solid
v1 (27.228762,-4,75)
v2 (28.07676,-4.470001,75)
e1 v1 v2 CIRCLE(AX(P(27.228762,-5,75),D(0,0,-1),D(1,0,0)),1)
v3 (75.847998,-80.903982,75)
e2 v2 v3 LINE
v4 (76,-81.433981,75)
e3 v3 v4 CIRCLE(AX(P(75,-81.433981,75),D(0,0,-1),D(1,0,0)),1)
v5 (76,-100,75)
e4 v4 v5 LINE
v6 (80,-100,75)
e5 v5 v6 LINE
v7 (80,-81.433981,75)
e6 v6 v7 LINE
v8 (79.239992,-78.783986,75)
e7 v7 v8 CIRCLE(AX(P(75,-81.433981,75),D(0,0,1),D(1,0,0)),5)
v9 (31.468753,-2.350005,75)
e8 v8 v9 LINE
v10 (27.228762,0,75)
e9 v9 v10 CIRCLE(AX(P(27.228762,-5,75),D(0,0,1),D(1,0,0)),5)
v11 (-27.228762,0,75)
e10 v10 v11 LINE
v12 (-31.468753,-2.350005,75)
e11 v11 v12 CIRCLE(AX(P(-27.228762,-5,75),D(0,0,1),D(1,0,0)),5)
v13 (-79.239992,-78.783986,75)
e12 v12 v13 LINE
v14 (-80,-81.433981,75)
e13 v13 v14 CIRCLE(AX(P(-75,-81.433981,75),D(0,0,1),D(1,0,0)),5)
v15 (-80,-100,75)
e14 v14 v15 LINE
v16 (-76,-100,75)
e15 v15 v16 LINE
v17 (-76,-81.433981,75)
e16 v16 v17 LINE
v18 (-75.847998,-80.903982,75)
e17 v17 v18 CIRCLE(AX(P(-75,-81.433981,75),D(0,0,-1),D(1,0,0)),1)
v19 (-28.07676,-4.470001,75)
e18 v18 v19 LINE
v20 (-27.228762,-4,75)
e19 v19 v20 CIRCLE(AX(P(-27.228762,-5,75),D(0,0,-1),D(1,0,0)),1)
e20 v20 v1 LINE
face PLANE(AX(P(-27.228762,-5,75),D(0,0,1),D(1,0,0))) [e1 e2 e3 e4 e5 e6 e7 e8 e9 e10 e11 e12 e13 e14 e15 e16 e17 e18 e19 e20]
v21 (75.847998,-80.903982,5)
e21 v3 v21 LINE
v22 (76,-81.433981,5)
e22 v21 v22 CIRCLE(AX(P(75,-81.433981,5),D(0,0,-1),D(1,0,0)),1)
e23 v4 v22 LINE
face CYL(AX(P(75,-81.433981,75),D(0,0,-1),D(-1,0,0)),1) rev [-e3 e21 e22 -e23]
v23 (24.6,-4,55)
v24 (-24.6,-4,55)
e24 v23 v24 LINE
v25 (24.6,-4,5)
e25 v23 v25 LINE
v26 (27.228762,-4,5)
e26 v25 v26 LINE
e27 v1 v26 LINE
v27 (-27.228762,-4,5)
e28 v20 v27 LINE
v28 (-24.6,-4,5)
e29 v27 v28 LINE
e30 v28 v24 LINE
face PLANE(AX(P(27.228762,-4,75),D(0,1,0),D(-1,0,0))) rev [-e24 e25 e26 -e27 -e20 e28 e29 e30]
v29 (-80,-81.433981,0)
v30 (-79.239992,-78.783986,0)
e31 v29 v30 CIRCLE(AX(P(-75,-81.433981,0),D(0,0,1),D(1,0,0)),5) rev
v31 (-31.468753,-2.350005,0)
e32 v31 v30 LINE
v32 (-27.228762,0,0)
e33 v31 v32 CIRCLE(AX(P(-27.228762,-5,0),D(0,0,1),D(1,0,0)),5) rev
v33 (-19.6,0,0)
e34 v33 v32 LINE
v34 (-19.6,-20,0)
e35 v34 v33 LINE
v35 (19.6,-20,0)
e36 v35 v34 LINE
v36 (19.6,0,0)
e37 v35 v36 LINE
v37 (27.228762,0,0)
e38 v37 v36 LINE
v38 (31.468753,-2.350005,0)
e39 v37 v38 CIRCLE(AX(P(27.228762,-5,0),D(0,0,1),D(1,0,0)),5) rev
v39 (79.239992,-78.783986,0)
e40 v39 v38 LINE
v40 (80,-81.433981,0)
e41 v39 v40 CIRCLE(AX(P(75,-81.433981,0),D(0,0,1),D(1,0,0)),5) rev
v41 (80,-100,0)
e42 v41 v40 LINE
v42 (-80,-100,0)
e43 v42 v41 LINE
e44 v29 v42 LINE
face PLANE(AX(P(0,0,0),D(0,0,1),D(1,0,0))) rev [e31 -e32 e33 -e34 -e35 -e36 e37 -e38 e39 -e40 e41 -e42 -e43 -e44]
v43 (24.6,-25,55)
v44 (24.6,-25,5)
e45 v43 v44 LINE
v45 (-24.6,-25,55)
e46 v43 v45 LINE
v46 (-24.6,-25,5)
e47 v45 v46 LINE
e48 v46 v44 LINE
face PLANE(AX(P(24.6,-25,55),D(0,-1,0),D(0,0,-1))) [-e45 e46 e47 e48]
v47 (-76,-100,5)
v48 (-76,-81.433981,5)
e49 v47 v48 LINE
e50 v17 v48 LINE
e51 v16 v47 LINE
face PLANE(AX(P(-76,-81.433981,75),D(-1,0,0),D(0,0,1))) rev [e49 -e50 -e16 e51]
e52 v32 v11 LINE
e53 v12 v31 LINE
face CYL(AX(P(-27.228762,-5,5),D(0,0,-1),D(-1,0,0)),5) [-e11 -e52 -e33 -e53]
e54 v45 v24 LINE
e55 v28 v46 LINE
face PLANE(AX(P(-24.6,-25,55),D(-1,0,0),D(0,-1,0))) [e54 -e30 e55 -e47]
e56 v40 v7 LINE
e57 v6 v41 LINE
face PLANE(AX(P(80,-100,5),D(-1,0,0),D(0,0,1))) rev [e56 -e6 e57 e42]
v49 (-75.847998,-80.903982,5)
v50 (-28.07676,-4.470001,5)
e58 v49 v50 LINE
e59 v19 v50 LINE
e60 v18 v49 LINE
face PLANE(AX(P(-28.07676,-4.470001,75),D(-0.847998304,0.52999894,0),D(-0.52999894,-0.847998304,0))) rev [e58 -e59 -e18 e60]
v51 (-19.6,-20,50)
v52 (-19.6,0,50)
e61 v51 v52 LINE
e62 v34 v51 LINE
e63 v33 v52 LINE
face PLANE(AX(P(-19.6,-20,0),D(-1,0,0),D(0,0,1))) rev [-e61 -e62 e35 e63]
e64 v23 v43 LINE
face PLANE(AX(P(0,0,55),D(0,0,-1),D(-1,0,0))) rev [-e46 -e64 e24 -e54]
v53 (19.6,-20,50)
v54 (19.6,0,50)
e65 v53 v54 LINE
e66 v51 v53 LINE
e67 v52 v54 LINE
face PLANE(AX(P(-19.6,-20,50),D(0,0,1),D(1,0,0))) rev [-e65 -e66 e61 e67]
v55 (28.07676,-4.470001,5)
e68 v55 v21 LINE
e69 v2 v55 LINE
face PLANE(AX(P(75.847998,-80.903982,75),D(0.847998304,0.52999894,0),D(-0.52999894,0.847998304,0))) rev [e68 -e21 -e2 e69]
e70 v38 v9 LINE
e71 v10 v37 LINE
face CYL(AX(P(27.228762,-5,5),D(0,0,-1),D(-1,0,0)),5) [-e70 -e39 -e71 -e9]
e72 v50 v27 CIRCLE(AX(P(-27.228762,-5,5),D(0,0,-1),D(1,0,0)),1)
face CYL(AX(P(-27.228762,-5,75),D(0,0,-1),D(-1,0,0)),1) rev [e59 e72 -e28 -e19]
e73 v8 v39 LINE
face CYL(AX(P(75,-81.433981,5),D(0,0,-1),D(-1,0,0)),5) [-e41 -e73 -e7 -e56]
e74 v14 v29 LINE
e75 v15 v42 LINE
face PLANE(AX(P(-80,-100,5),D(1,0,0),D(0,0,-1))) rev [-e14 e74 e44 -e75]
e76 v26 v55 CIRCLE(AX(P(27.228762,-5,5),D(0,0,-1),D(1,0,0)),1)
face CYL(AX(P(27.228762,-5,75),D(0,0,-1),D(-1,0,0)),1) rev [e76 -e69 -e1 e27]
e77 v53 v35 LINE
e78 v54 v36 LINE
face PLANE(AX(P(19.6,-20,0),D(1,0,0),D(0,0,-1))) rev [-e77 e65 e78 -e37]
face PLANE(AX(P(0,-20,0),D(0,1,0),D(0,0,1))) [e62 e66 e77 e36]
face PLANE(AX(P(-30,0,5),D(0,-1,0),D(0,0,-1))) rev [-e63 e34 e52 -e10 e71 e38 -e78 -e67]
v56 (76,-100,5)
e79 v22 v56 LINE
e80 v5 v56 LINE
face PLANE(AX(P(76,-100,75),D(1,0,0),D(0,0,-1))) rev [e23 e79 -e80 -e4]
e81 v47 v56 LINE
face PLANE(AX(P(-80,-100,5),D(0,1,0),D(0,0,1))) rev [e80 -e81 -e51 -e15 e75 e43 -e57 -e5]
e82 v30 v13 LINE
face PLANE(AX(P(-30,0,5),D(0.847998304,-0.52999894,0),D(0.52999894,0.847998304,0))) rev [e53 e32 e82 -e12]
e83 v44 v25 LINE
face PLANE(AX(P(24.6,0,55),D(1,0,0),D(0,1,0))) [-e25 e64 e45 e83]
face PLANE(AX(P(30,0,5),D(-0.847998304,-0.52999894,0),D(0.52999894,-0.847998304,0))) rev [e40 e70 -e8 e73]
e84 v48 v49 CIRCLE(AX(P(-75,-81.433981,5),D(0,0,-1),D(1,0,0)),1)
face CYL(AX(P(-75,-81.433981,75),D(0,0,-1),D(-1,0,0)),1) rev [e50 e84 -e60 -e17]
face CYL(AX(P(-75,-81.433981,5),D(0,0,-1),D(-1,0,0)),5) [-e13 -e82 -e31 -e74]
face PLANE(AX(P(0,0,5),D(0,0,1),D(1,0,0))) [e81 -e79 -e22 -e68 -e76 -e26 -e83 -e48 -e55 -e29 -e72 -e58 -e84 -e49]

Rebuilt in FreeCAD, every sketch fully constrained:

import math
import FreeCAD as App
import Part
import Sketcher

V = App.Vector


def edges_at(feature, points):
    """Names of the edges that pass closest to the given points."""
    edges = feature.Shape.Edges
    near = lambda p: min(range(len(edges)), key=lambda i: edges[i].distToShape(Part.Vertex(*p))[0])
    return sorted({f"Edge{near(p) + 1}" for p in points})

doc = App.newDocument("Part")
params = doc.addObject("Spreadsheet::Sheet", "Params")
for row, (alias, value) in enumerate([
    ("sketch1_width", "60 mm"),
    ("sketch1_width2", "160 mm"),
    ("sketch1_height", "20 mm"),
    ("pad1_length", "5 mm"),
    ("fillet_radius", "5 mm"),
    ("fillet2_radius", "5 mm"),
    ("fillet3_radius", "5 mm"),
    ("fillet4_radius", "5 mm"),
    ("sketch2_radius", "5 mm"),
    ("sketch2_radius2", "1 mm"),
    ("pad2_length", "70 mm"),
    ("sketch3_height", "25 mm"),
    ("sketch3_width", "49.2 mm"),
    ("pad3_length", "55 mm"),
    ("sketch4_height", "50 mm"),
    ("sketch4_width", "39.2 mm"),
    ("pocket1_length", "20 mm"),
], start=1):
    params.set(f"A{row}", alias)
    params.set(f"B{row}", "=" + value)
    params.setAlias(f"B{row}", alias)

body = doc.addObject("PartDesign::Body", "Body")

sketch1 = body.newObject("Sketcher::SketchObject", "Sketch")
sketch1.AttachmentSupport = (doc.getObject("XY_Plane"), [""])
sketch1.MapMode = "FlatFace"
sketch1.addGeometry(Part.LineSegment(V(30, 0, 0), V(-30, 0, 0)), False)
sketch1.addGeometry(Part.LineSegment(V(-30, 0, 0), V(-80, -80, 0)), False)
sketch1.addGeometry(Part.LineSegment(V(-80, -80, 0), V(-80, -100, 0)), False)
sketch1.addGeometry(Part.LineSegment(V(-80, -100, 0), V(80, -100, 0)), False)
sketch1.addGeometry(Part.LineSegment(V(80, -100, 0), V(80, -80, 0)), False)
sketch1.addGeometry(Part.LineSegment(V(80, -80, 0), V(30, 0, 0)), False)
sketch1.addConstraint(Sketcher.Constraint("Coincident", 0, 2, 1, 1))
sketch1.addConstraint(Sketcher.Constraint("Coincident", 1, 2, 2, 1))
sketch1.addConstraint(Sketcher.Constraint("Coincident", 2, 2, 3, 1))
sketch1.addConstraint(Sketcher.Constraint("Coincident", 3, 2, 4, 1))
sketch1.addConstraint(Sketcher.Constraint("Coincident", 4, 2, 5, 1))
sketch1.addConstraint(Sketcher.Constraint("Coincident", 5, 2, 0, 1))
sketch1.addConstraint(Sketcher.Constraint("Horizontal", 0))
sketch1.addConstraint(Sketcher.Constraint("Vertical", 2))
sketch1.addConstraint(Sketcher.Constraint("Horizontal", 3))
sketch1.addConstraint(Sketcher.Constraint("Vertical", 4))
sketch1.addConstraint(Sketcher.Constraint("Symmetric", 0, 2, 5, 2, -1, 1))
sketch1.addConstraint(Sketcher.Constraint("Symmetric", 1, 2, 4, 2, -2))
sketch1.addConstraint(Sketcher.Constraint("DistanceX", 0, 2, 0, 1, 60.0))
sketch1.addConstraint(Sketcher.Constraint("DistanceX", 3, 1, 3, 2, 160.0))
sketch1.addConstraint(Sketcher.Constraint("DistanceY", 2, 2, 2, 1, 20.0))
sketch1.addConstraint(Sketcher.Constraint("DistanceY", 1, 2, -1, 1, 80.0))
sketch1.setExpression("Constraints[12]", "Params.sketch1_width")
sketch1.setExpression("Constraints[13]", "Params.sketch1_width2")
sketch1.setExpression("Constraints[14]", "Params.sketch1_height")
pad1 = body.newObject("PartDesign::Pad", "Pad")
pad1.Profile = sketch1
pad1.setExpression("Length", "Params.pad1_length")
doc.recompute()

fillet = body.newObject("PartDesign::Fillet", "Fillet")
fillet.Base = (pad1, edges_at(pad1, [(-30, 0, 2.5)]))
fillet.setExpression("Radius", "Params.fillet_radius")
doc.recompute()

fillet2 = body.newObject("PartDesign::Fillet", "Fillet001")
fillet2.Base = (fillet, edges_at(fillet, [(30, 0, 2.5)]))
fillet2.setExpression("Radius", "Params.fillet2_radius")
doc.recompute()

fillet3 = body.newObject("PartDesign::Fillet", "Fillet002")
fillet3.Base = (fillet2, edges_at(fillet2, [(80, -80, 2.5)]))
fillet3.setExpression("Radius", "Params.fillet3_radius")
doc.recompute()

fillet4 = body.newObject("PartDesign::Fillet", "Fillet003")
fillet4.Base = (fillet3, edges_at(fillet3, [(-80, -80, 2.5)]))
fillet4.setExpression("Radius", "Params.fillet4_radius")

sketch2 = body.newObject("Sketcher::SketchObject", "Sketch001")
sketch2.AttachmentSupport = (doc.getObject("XY_Plane"), [""])
sketch2.MapMode = "FlatFace"
sketch2.AttachmentOffset = App.Placement(V(0, 0, 75), App.Rotation())
sketch2.addGeometry(Part.LineSegment(V(76, -81.4, 0), V(76, -100, 0)), False)
sketch2.addGeometry(Part.LineSegment(V(76, -100, 0), V(80, -100, 0)), False)
sketch2.addGeometry(Part.LineSegment(V(80, -100, 0), V(80, -81.4, 0)), False)
sketch2.addGeometry(Part.ArcOfCircle(Part.Circle(V(75, -81.4, 0), V(0, 0, 1), 5), math.radians(0), math.radians(32)), False)
sketch2.addGeometry(Part.LineSegment(V(79.2, -78.8, 0), V(31.5, -2.4, 0)), False)
sketch2.addGeometry(Part.ArcOfCircle(Part.Circle(V(27.2, -5, 0), V(0, 0, 1), 5), math.radians(32), math.radians(90)), False)
sketch2.addGeometry(Part.LineSegment(V(27.2, 0, 0), V(-27.2, 0, 0)), False)
sketch2.addGeometry(Part.ArcOfCircle(Part.Circle(V(-27.2, -5, 0), V(0, 0, 1), 5), math.radians(90), math.radians(148)), False)
sketch2.addGeometry(Part.LineSegment(V(-31.5, -2.4, 0), V(-79.2, -78.8, 0)), False)
sketch2.addGeometry(Part.ArcOfCircle(Part.Circle(V(-75, -81.4, 0), V(0, 0, 1), 5), math.radians(148), math.radians(180)), False)
sketch2.addGeometry(Part.LineSegment(V(-80, -81.4, 0), V(-80, -100, 0)), False)
sketch2.addGeometry(Part.LineSegment(V(-80, -100, 0), V(-76, -100, 0)), False)
sketch2.addGeometry(Part.LineSegment(V(-76, -100, 0), V(-76, -81.4, 0)), False)
sketch2.addGeometry(Part.ArcOfCircle(Part.Circle(V(-75, -81.4, 0), V(0, 0, 1), 1), math.radians(148), math.radians(180)), False)
sketch2.addGeometry(Part.LineSegment(V(-75.8, -80.9, 0), V(-28.1, -4.5, 0)), False)
sketch2.addGeometry(Part.ArcOfCircle(Part.Circle(V(-27.2, -5, 0), V(0, 0, 1), 1), math.radians(90), math.radians(148)), False)
sketch2.addGeometry(Part.LineSegment(V(-27.2, -4, 0), V(27.2, -4, 0)), False)
sketch2.addGeometry(Part.ArcOfCircle(Part.Circle(V(27.2, -5, 0), V(0, 0, 1), 1), math.radians(32), math.radians(90)), False)
sketch2.addGeometry(Part.LineSegment(V(28.1, -4.5, 0), V(75.8, -80.9, 0)), False)
sketch2.addGeometry(Part.ArcOfCircle(Part.Circle(V(75, -81.4, 0), V(0, 0, 1), 1), math.radians(0), math.radians(32)), False)
sketch2.addConstraint(Sketcher.Constraint("Coincident", 0, 2, 1, 1))
sketch2.addConstraint(Sketcher.Constraint("Coincident", 1, 2, 2, 1))
sketch2.addConstraint(Sketcher.Constraint("Tangent", 2, 2, 3, 1))
sketch2.addConstraint(Sketcher.Constraint("Tangent", 3, 2, 4, 1))
sketch2.addConstraint(Sketcher.Constraint("Tangent", 4, 2, 5, 1))
sketch2.addConstraint(Sketcher.Constraint("Tangent", 5, 2, 6, 1))
sketch2.addConstraint(Sketcher.Constraint("Tangent", 6, 2, 7, 1))
sketch2.addConstraint(Sketcher.Constraint("Tangent", 7, 2, 8, 1))
sketch2.addConstraint(Sketcher.Constraint("Tangent", 8, 2, 9, 1))
sketch2.addConstraint(Sketcher.Constraint("Tangent", 9, 2, 10, 1))
sketch2.addConstraint(Sketcher.Constraint("Coincident", 10, 2, 11, 1))
sketch2.addConstraint(Sketcher.Constraint("Coincident", 11, 2, 12, 1))
sketch2.addConstraint(Sketcher.Constraint("Tangent", 12, 2, 13, 2))
sketch2.addConstraint(Sketcher.Constraint("Tangent", 13, 1, 14, 1))
sketch2.addConstraint(Sketcher.Constraint("Tangent", 14, 2, 15, 2))
sketch2.addConstraint(Sketcher.Constraint("Tangent", 15, 1, 16, 1))
sketch2.addConstraint(Sketcher.Constraint("Tangent", 16, 2, 17, 2))
sketch2.addConstraint(Sketcher.Constraint("Tangent", 17, 1, 18, 1))
sketch2.addConstraint(Sketcher.Constraint("Tangent", 18, 2, 19, 2))
sketch2.addConstraint(Sketcher.Constraint("Tangent", 19, 1, 0, 1))
sketch2.addConstraint(Sketcher.Constraint("Vertical", 0))
sketch2.addConstraint(Sketcher.Constraint("Horizontal", 1))
sketch2.addConstraint(Sketcher.Constraint("Vertical", 2))
sketch2.addConstraint(Sketcher.Constraint("Horizontal", 6))
sketch2.addConstraint(Sketcher.Constraint("Vertical", 10))
sketch2.addConstraint(Sketcher.Constraint("Horizontal", 11))
sketch2.addConstraint(Sketcher.Constraint("Vertical", 12))
sketch2.addConstraint(Sketcher.Constraint("Horizontal", 16))
sketch2.addConstraint(Sketcher.Constraint("Coincident", 13, 3, 9, 3))
sketch2.addConstraint(Sketcher.Constraint("Coincident", 15, 3, 7, 3))
sketch2.addConstraint(Sketcher.Constraint("Coincident", 17, 3, 5, 3))
sketch2.addConstraint(Sketcher.Constraint("Coincident", 19, 3, 3, 3))
sketch2.addConstraint(Sketcher.Constraint("Equal", 3, 5))
sketch2.addConstraint(Sketcher.Constraint("Equal", 5, 7))
sketch2.addConstraint(Sketcher.Constraint("Equal", 7, 9))
sketch2.addConstraint(Sketcher.Constraint("Equal", 13, 15))
sketch2.addConstraint(Sketcher.Constraint("Equal", 17, 19))
sketch2.addConstraint(Sketcher.Constraint("Symmetric", 5, 2, 6, 2, -1, 1))
sketch2.addConstraint(Sketcher.Constraint("Symmetric", 3, 3, 9, 3, -2))
sketch2.addConstraint(Sketcher.Constraint("Horizontal", 1, 2, 10, 2))
sketch2.addConstraint(Sketcher.Constraint("Radius", 3, 5.0))
sketch2.addConstraint(Sketcher.Constraint("Radius", 13, 1.0))
sketch2.addConstraint(Sketcher.Constraint("DistanceX", -1, 1, 3, 3, 75.0))
sketch2.addConstraint(Sketcher.Constraint("DistanceY", 0, 2, -1, 1, 100.0))
sketch2.addConstraint(Sketcher.Constraint("DistanceY", 14, 2, -1, 1, 4.470001))
sketch2.addConstraint(Sketcher.Constraint("DistanceY", 0, 2, 0, 1, 18.566019))
sketch2.setExpression("Constraints[40]", "Params.sketch2_radius")
sketch2.setExpression("Constraints[41]", "Params.sketch2_radius2")
pad2 = body.newObject("PartDesign::Pad", "Pad001")
pad2.Profile = sketch2
pad2.setExpression("Length", "Params.pad2_length")
pad2.Reversed = True

sketch3 = body.newObject("Sketcher::SketchObject", "Sketch002")
sketch3.AttachmentSupport = (doc.getObject("XY_Plane"), [""])
sketch3.MapMode = "FlatFace"
sketch3.addGeometry(Part.LineSegment(V(25, 0, 0), V(25, -25, 0)), False)
sketch3.addGeometry(Part.LineSegment(V(25, -25, 0), V(-25, -25, 0)), False)
sketch3.addGeometry(Part.LineSegment(V(-25, -25, 0), V(-25, 0, 0)), False)
sketch3.addGeometry(Part.LineSegment(V(-25, 0, 0), V(25, 0, 0)), False)
sketch3.addConstraint(Sketcher.Constraint("Coincident", 0, 2, 1, 1))
sketch3.addConstraint(Sketcher.Constraint("Coincident", 1, 2, 2, 1))
sketch3.addConstraint(Sketcher.Constraint("Coincident", 2, 2, 3, 1))
sketch3.addConstraint(Sketcher.Constraint("Coincident", 3, 2, 0, 1))
sketch3.addConstraint(Sketcher.Constraint("Vertical", 0))
sketch3.addConstraint(Sketcher.Constraint("Horizontal", 1))
sketch3.addConstraint(Sketcher.Constraint("Vertical", 2))
sketch3.addConstraint(Sketcher.Constraint("Horizontal", 3))
sketch3.addConstraint(Sketcher.Constraint("Symmetric", 2, 2, 3, 2, -1, 1))
sketch3.addConstraint(Sketcher.Constraint("DistanceY", 0, 2, 0, 1, 25.0))
sketch3.addConstraint(Sketcher.Constraint("DistanceX", 1, 2, 1, 1, 49.2))
sketch3.setExpression("Constraints[9]", "Params.sketch3_height")
sketch3.setExpression("Constraints[10]", "Params.sketch3_width")
pad3 = body.newObject("PartDesign::Pad", "Pad002")
pad3.Profile = sketch3
pad3.setExpression("Length", "Params.pad3_length")

sketch4 = body.newObject("Sketcher::SketchObject", "Sketch003")
sketch4.AttachmentSupport = (doc.getObject("XZ_Plane"), [""])
sketch4.MapMode = "FlatFace"
sketch4.addGeometry(Part.LineSegment(V(-20, 0, 0), V(-20, 50, 0)), False)
sketch4.addGeometry(Part.LineSegment(V(-20, 50, 0), V(20, 50, 0)), False)
sketch4.addGeometry(Part.LineSegment(V(20, 50, 0), V(20, 0, 0)), False)
sketch4.addGeometry(Part.LineSegment(V(20, 0, 0), V(-20, 0, 0)), False)
sketch4.addConstraint(Sketcher.Constraint("Coincident", 0, 2, 1, 1))
sketch4.addConstraint(Sketcher.Constraint("Coincident", 1, 2, 2, 1))
sketch4.addConstraint(Sketcher.Constraint("Coincident", 2, 2, 3, 1))
sketch4.addConstraint(Sketcher.Constraint("Coincident", 3, 2, 0, 1))
sketch4.addConstraint(Sketcher.Constraint("Vertical", 0))
sketch4.addConstraint(Sketcher.Constraint("Horizontal", 1))
sketch4.addConstraint(Sketcher.Constraint("Vertical", 2))
sketch4.addConstraint(Sketcher.Constraint("Horizontal", 3))
sketch4.addConstraint(Sketcher.Constraint("Symmetric", 2, 2, 3, 2, -1, 1))
sketch4.addConstraint(Sketcher.Constraint("DistanceY", 0, 1, 0, 2, 50.0))
sketch4.addConstraint(Sketcher.Constraint("DistanceX", 1, 1, 1, 2, 39.2))
sketch4.setExpression("Constraints[9]", "Params.sketch4_height")
sketch4.setExpression("Constraints[10]", "Params.sketch4_width")
pocket1 = body.newObject("PartDesign::Pocket", "Pocket")
pocket1.Profile = sketch4
pocket1.setExpression("Length", "Params.pocket1_length")
pocket1.Reversed = True

doc.recompute()
